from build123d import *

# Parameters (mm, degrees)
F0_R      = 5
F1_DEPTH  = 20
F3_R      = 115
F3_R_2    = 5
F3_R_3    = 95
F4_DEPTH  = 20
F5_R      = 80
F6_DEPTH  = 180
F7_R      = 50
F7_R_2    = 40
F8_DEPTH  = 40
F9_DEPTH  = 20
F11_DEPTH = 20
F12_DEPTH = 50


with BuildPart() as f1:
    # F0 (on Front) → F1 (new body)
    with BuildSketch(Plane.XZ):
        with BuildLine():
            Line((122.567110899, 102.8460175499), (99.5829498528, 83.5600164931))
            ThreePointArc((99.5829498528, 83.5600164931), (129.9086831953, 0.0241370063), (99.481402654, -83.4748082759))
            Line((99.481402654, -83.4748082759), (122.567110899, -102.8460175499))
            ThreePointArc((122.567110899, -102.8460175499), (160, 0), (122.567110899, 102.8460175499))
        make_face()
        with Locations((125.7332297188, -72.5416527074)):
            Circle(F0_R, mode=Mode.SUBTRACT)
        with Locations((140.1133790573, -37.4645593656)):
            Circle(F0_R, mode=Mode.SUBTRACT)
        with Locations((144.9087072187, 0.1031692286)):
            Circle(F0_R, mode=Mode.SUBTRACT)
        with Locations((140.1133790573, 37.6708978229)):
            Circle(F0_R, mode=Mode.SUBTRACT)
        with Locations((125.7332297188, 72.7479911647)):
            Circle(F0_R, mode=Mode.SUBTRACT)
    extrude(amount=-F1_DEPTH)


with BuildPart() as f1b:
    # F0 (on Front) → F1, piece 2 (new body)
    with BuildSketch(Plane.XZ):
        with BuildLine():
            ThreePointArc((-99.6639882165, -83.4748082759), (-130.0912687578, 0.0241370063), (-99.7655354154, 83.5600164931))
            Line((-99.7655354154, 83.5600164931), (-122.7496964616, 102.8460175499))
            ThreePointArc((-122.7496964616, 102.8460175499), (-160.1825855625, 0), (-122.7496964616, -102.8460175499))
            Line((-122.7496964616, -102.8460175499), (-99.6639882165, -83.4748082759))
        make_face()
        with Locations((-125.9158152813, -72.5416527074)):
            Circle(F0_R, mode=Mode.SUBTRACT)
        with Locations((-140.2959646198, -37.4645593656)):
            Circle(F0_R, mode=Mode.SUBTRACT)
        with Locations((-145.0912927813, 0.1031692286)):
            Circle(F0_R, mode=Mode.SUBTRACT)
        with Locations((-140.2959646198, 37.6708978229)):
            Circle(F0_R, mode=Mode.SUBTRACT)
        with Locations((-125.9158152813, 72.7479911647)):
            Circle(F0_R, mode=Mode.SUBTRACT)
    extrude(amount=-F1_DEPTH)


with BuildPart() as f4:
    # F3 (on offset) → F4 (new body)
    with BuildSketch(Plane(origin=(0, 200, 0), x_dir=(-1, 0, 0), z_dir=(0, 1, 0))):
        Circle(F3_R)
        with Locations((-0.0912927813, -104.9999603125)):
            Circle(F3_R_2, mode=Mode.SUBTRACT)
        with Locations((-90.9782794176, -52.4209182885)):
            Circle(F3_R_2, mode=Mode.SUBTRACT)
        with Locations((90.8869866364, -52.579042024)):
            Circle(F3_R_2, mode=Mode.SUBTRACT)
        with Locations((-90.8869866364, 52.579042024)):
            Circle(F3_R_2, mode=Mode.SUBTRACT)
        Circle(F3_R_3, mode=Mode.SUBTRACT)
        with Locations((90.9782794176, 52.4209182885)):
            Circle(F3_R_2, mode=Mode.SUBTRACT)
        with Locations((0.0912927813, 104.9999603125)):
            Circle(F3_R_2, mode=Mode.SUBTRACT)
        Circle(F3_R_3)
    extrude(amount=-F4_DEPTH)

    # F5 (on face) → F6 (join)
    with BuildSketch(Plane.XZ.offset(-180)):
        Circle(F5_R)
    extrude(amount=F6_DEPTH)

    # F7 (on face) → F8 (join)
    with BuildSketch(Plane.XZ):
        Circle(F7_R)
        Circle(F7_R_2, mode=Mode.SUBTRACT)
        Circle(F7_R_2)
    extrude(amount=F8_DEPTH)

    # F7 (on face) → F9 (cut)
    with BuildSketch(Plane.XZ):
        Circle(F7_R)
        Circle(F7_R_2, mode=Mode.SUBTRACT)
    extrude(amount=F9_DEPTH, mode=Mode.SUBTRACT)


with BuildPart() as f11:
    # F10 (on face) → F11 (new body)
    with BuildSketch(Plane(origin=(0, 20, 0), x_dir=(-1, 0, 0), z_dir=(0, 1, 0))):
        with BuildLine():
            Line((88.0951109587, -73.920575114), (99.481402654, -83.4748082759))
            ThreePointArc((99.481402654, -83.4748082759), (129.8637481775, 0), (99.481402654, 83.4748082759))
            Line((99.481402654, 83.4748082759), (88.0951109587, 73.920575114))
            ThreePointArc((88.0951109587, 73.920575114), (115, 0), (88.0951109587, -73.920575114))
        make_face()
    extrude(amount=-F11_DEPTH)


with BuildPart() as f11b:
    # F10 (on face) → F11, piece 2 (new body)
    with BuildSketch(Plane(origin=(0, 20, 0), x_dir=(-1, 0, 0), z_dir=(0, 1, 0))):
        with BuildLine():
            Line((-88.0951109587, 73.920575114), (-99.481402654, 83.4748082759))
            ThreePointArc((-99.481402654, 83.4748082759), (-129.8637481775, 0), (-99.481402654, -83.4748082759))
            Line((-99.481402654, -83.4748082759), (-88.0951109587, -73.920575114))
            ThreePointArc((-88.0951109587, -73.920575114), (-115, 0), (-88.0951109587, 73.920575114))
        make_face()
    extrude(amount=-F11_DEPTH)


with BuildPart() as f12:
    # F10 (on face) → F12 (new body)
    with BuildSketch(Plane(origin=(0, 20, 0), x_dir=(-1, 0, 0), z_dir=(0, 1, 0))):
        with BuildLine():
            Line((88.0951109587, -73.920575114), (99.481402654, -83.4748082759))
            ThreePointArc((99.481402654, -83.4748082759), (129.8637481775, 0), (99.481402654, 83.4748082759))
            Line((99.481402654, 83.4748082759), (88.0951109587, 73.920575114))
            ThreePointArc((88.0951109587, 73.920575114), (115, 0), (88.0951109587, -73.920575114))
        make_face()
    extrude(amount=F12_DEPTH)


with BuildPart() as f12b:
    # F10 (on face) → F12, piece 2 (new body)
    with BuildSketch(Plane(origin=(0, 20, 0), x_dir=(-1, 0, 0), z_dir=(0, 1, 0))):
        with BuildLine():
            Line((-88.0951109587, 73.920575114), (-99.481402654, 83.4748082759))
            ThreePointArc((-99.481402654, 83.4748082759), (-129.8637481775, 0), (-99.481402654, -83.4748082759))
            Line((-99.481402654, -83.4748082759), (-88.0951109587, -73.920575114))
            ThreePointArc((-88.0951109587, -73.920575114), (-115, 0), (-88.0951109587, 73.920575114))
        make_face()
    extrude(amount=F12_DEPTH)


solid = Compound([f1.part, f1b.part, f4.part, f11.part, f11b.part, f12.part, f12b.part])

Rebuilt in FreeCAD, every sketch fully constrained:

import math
import FreeCAD as App
import Part
import Sketcher
from FreeCAD import Vector
Q = App.Units.Quantity

doc = App.newDocument("Part")
body = doc.addObject("PartDesign::Body", "Body")

# Sketch on XZ plane
sketch1 = body.newObject("Sketcher::SketchObject", "Sketch")
sketch1.AttachmentSupport = (doc.getObject("XZ_Plane"), [""])
sketch1.MapMode = "FlatFace"
sketch1.addGeometry(Part.LineSegment(Vector(122.567111, 102.846018, 0), Vector(99.58295, 83.560016, 0)), False)
sketch1.addGeometry(Part.ArcOfCircle(Part.Circle(Vector(-0.091293, 0.103169, 0), Vector(0, 0, 1), 130), math.radians(-40.008969), math.radians(39.939304)), False)
sketch1.addGeometry(Part.LineSegment(Vector(99.481403, -83.474808, 0), Vector(122.567111, -102.846018, 0)), False)
sketch1.addGeometry(Part.ArcOfCircle(Part.Circle(Vector(0, 0, 0), Vector(0, 0, 1), 160), math.radians(-40), math.radians(40)), False)
sketch1.addGeometry(Part.Circle(Vector(125.73323, -72.541653, 0), Vector(0, 0, 1), 5), False)
sketch1.addGeometry(Part.Circle(Vector(140.113379, -37.464559, 0), Vector(0, 0, 1), 5), False)
sketch1.addGeometry(Part.Circle(Vector(144.908707, 0.103169, 0), Vector(0, 0, 1), 5), False)
sketch1.addGeometry(Part.Circle(Vector(125.73323, 72.747991, 0), Vector(0, 0, 1), 5), False)
sketch1.addGeometry(Part.Circle(Vector(140.113379, 37.670898, 0), Vector(0, 0, 1), 5), False)
sketch1.addConstraint(Sketcher.Constraint("Coincident", 0, 2, 1, 2))
sketch1.addConstraint(Sketcher.Constraint("Coincident", 1, 1, 2, 1))
sketch1.addConstraint(Sketcher.Constraint("Coincident", 2, 2, 3, 1))
sketch1.addConstraint(Sketcher.Constraint("Coincident", 3, 2, 0, 1))
sketch1.addConstraint(Sketcher.Constraint("Coincident", 3, 3, -1, 1))
sketch1.addConstraint(Sketcher.Constraint("Equal", 4, 5))
sketch1.addConstraint(Sketcher.Constraint("Equal", 5, 6))
sketch1.addConstraint(Sketcher.Constraint("Equal", 6, 7))
sketch1.addConstraint(Sketcher.Constraint("Equal", 7, 8))
sketch1.addConstraint(Sketcher.Constraint("Horizontal", 1, 3, 6, 3))
sketch1.addConstraint(Sketcher.Constraint("Vertical", 4, 3, 7, 3))
sketch1.addConstraint(Sketcher.Constraint("Vertical", 5, 3, 8, 3))
sketch1.addConstraint(Sketcher.Constraint("Vertical", 2, 2, 3, 2))
sketch1.addConstraint(Sketcher.Constraint("Diameter", 4, 10.0))
sketch1.addConstraint(Sketcher.Constraint("Radius", 1, 130.0))
sketch1.addConstraint(Sketcher.Constraint("Radius", 3, 160.0))
sketch1.addConstraint(Sketcher.Constraint("Angle", 0, Q("-140 deg")))
sketch1.addConstraint(Sketcher.Constraint("Angle", 2, Q("-40 deg")))
sketch1.addConstraint(Sketcher.Constraint("DistanceX", 1, 3, 6, 3, 145.0))
sketch1.addConstraint(Sketcher.Constraint("DistanceY", 0, 2, 3, 2, 19.286001))
sketch1.addConstraint(Sketcher.Constraint("Distance", 2, 30.136252))
sketch1.addConstraint(Sketcher.Constraint("DistanceX", -1, 1, 4, 3, 125.73323))
sketch1.addConstraint(Sketcher.Constraint("DistanceX", -1, 1, 5, 3, 140.113379))
sketch1.addConstraint(Sketcher.Constraint("DistanceY", 5, 3, -1, 1, 37.464559))
sketch1.addConstraint(Sketcher.Constraint("DistanceY", -1, 1, 7, 3, 72.747991))
sketch1.addConstraint(Sketcher.Constraint("DistanceX", -1, 1, 0, 2, 99.58295))
sketch1.addConstraint(Sketcher.Constraint("DistanceY", 4, 3, 1, 3, 72.644822))
sketch1.addConstraint(Sketcher.Constraint("DistanceY", 6, 3, 8, 3, 37.567729))
pad1 = body.newObject("PartDesign::Pad", "Pad")
pad1.Profile = sketch1
pad1.Length = 20
pad1.Reversed = True
body2 = doc.addObject("PartDesign::Body", "Body001")

# Sketch on XZ plane
sketch2 = body2.newObject("Sketcher::SketchObject", "Sketch001")
sketch2.AttachmentSupport = (doc.getObject("XZ_Plane001"), [""])
sketch2.MapMode = "FlatFace"
sketch2.addGeometry(Part.ArcOfCircle(Part.Circle(Vector(-0.091293, 0.103169, 0), Vector(0, 0, 1), 130), math.radians(140.060696), math.radians(220.008969)), False)
sketch2.addGeometry(Part.LineSegment(Vector(-99.765535, 83.560016, 0), Vector(-122.749696, 102.846018, 0)), False)
sketch2.addGeometry(Part.ArcOfCircle(Part.Circle(Vector(-0.182586, 0, 0), Vector(0, 0, 1), 160), math.radians(140), math.radians(220)), False)
sketch2.addGeometry(Part.LineSegment(Vector(-122.749696, -102.846018, 0), Vector(-99.663988, -83.474808, 0)), False)
sketch2.addGeometry(Part.Circle(Vector(-145.091293, 0.103169, 0), Vector(0, 0, 1), 5), False)
sketch2.addGeometry(Part.Circle(Vector(-140.295965, -37.464559, 0), Vector(0, 0, 1), 5), False)
sketch2.addGeometry(Part.Circle(Vector(-125.915815, -72.541653, 0), Vector(0, 0, 1), 5), False)
sketch2.addGeometry(Part.Circle(Vector(-140.295965, 37.670898, 0), Vector(0, 0, 1), 5), False)
sketch2.addGeometry(Part.Circle(Vector(-125.915815, 72.747991, 0), Vector(0, 0, 1), 5), False)
sketch2.addConstraint(Sketcher.Constraint("Coincident", 0, 1, 1, 1))
sketch2.addConstraint(Sketcher.Constraint("Coincident", 1, 2, 2, 1))
sketch2.addConstraint(Sketcher.Constraint("Coincident", 2, 2, 3, 1))
sketch2.addConstraint(Sketcher.Constraint("Coincident", 3, 2, 0, 2))
sketch2.addConstraint(Sketcher.Constraint("Equal", 4, 5))
sketch2.addConstraint(Sketcher.Constraint("Equal", 5, 6))
sketch2.addConstraint(Sketcher.Constraint("Equal", 6, 7))
sketch2.addConstraint(Sketcher.Constraint("Equal", 7, 8))
sketch2.addConstraint(Sketcher.Constraint("Symmetric", 1, 2, 2, 2, -1))
sketch2.addConstraint(Sketcher.Constraint("Horizontal", 0, 3, 4, 3))
sketch2.addConstraint(Sketcher.Constraint("Vertical", 5, 3, 7, 3))
sketch2.addConstraint(Sketcher.Constraint("Vertical", 6, 3, 8, 3))
sketch2.addConstraint(Sketcher.Constraint("Diameter", 4, 10.0))
sketch2.addConstraint(Sketcher.Constraint("Radius", 0, 130.0))
sketch2.addConstraint(Sketcher.Constraint("Radius", 2, 160.0))
sketch2.addConstraint(Sketcher.Constraint("Angle", 1, Q("140 deg")))
sketch2.addConstraint(Sketcher.Constraint("Angle", 3, Q("40 deg")))
sketch2.addConstraint(Sketcher.Constraint("DistanceX", 4, 3, 0, 3, 145.0))
sketch2.addConstraint(Sketcher.Constraint("DistanceY", 0, 1, 1, 2, 19.286001))
sketch2.addConstraint(Sketcher.Constraint("Distance", 3, 30.136252))
sketch2.addConstraint(Sketcher.Constraint("DistanceY", 5, 3, -1, 1, 37.464559))
sketch2.addConstraint(Sketcher.Constraint("DistanceY", -1, 1, 8, 3, 72.747991))
sketch2.addConstraint(Sketcher.Constraint("DistanceX", 3, 2, -1, 1, 99.663988))
sketch2.addConstraint(Sketcher.Constraint("DistanceY", 3, 2, -1, 1, 83.474808))
sketch2.addConstraint(Sketcher.Constraint("DistanceX", 4, 3, 5, 3, 4.795328))
sketch2.addConstraint(Sketcher.Constraint("DistanceX", 5, 3, 6, 3, 14.380149))
sketch2.addConstraint(Sketcher.Constraint("DistanceY", 6, 3, 4, 3, 72.644822))
sketch2.addConstraint(Sketcher.Constraint("DistanceY", 4, 3, 7, 3, 37.567729))
pad2 = body2.newObject("PartDesign::Pad", "Pad001")
pad2.Profile = sketch2
pad2.Length = 20
pad2.Reversed = True
body3 = doc.addObject("PartDesign::Body", "Body002")

# Sketch on XZ plane
sketch3 = body3.newObject("Sketcher::SketchObject", "Sketch002")
sketch3.AttachmentSupport = (doc.getObject("XZ_Plane002"), [""])
sketch3.MapMode = "FlatFace"
sketch3.AttachmentOffset = App.Placement(Vector(0, 0, -200), App.Rotation())
sketch3.addGeometry(Part.Circle(Vector(0, 0, 0), Vector(0, 0, 1), 115), False)
sketch3.addGeometry(Part.Circle(Vector(0.091293, -104.99996, 0), Vector(0, 0, 1), 5), False)
sketch3.addGeometry(Part.Circle(Vector(90.978279, -52.420918, 0), Vector(0, 0, 1), 5), False)
sketch3.addGeometry(Part.Circle(Vector(-90.886987, -52.579042, 0), Vector(0, 0, 1), 5), False)
sketch3.addGeometry(Part.Circle(Vector(90.886987, 52.579042, 0), Vector(0, 0, 1), 5), False)
sketch3.addGeometry(Part.Circle(Vector(-90.978279, 52.420918, 0), Vector(0, 0, 1), 5), False)
sketch3.addGeometry(Part.Circle(Vector(-0.091293, 104.99996, 0), Vector(0, 0, 1), 5), False)
sketch3.addConstraint(Sketcher.Constraint("Coincident", 0, 3, -1, 1))
sketch3.addConstraint(Sketcher.Constraint("Equal", 1, 2))
sketch3.addConstraint(Sketcher.Constraint("Equal", 2, 3))
sketch3.addConstraint(Sketcher.Constraint("Equal", 3, 4))
sketch3.addConstraint(Sketcher.Constraint("Equal", 4, 5))
sketch3.addConstraint(Sketcher.Constraint("Equal", 5, 6))
sketch3.addConstraint(Sketcher.Constraint("Symmetric", 3, 3, 4, 3, -1, 1))
sketch3.addConstraint(Sketcher.Constraint("Symmetric", 2, 3, 5, 3, -1, 1))
sketch3.addConstraint(Sketcher.Constraint("Symmetric", 1, 3, 6, 3, -1, 1))
sketch3.addConstraint(Sketcher.Constraint("Diameter", 0, 230.0))
sketch3.addConstraint(Sketcher.Constraint("Diameter", 1, 10.0))
sketch3.addConstraint(Sketcher.Constraint("DistanceY", 1, 3, -1, 1, 104.99996))
sketch3.addConstraint(Sketcher.Constraint("DistanceX", -1, 1, 2, 3, 90.978279))
sketch3.addConstraint(Sketcher.Constraint("DistanceY", 2, 3, -1, 1, 52.420918))
sketch3.addConstraint(Sketcher.Constraint("DistanceX", 3, 3, 1, 3, 90.978279))
sketch3.addConstraint(Sketcher.Constraint("DistanceY", 1, 3, 3, 3, 52.420918))
sketch3.addConstraint(Sketcher.Constraint("DistanceX", -1, 1, 1, 3, 0.091293))
pad3 = body3.newObject("PartDesign::Pad", "Pad002")
pad3.Profile = sketch3
pad3.Length = 20

# Sketch on XZ plane
sketch4 = body3.newObject("Sketcher::SketchObject", "Sketch003")
sketch4.AttachmentSupport = (doc.getObject("XZ_Plane002"), [""])
sketch4.MapMode = "FlatFace"
sketch4.AttachmentOffset = App.Placement(Vector(0, 0, -180), App.Rotation())
sketch4.addGeometry(Part.Circle(Vector(0, 0, 0), Vector(0, 0, 1), 80), False)
sketch4.addConstraint(Sketcher.Constraint("Coincident", 0, 3, -1, 1))
sketch4.addConstraint(Sketcher.Constraint("Diameter", 0, 160.0))
pad4 = body3.newObject("PartDesign::Pad", "Pad003")
pad4.Profile = sketch4
pad4.Length = 180

# Sketch on XZ plane
sketch5 = body3.newObject("Sketcher::SketchObject", "Sketch004")
sketch5.AttachmentSupport = (doc.getObject("XZ_Plane002"), [""])
sketch5.MapMode = "FlatFace"
sketch5.addGeometry(Part.Circle(Vector(0, 0, 0), Vector(0, 0, 1), 50), False)
sketch5.addConstraint(Sketcher.Constraint("Coincident", 0, 3, -1, 1))
sketch5.addConstraint(Sketcher.Constraint("Diameter", 0, 100.0))
pad5 = body3.newObject("PartDesign::Pad", "Pad004")
pad5.Profile = sketch5
pad5.Length = 40

# Sketch on XZ plane
sketch6 = body3.newObject("Sketcher::SketchObject", "Sketch005")
sketch6.AttachmentSupport = (doc.getObject("XZ_Plane002"), [""])
sketch6.MapMode = "FlatFace"
sketch6.addGeometry(Part.Circle(Vector(0, 0, 0), Vector(0, 0, 1), 50), False)
sketch6.addGeometry(Part.Circle(Vector(0, 0, 0), Vector(0, 0, 1), 40), False)
sketch6.addConstraint(Sketcher.Constraint("Coincident", 0, 3, -1, 1))
sketch6.addConstraint(Sketcher.Constraint("Coincident", 1, 3, -1, 1))
sketch6.addConstraint(Sketcher.Constraint("Diameter", 0, 100.0))
sketch6.addConstraint(Sketcher.Constraint("Diameter", 1, 80.0))
pocket1 = body3.newObject("PartDesign::Pocket", "Pocket")
pocket1.Profile = sketch6
pocket1.Length = 20
pocket1.Reversed = True
body4 = doc.addObject("PartDesign::Body", "Body003")

# Sketch on XZ plane
sketch7 = body4.newObject("Sketcher::SketchObject", "Sketch006")
sketch7.AttachmentSupport = (doc.getObject("XZ_Plane003"), [""])
sketch7.MapMode = "FlatFace"
sketch7.AttachmentOffset = App.Placement(Vector(0, 0, -20), App.Rotation())
sketch7.addGeometry(Part.LineSegment(Vector(-88.095111, -73.920575, 0), Vector(-99.481403, -83.474808, 0)), False)
sketch7.addGeometry(Part.ArcOfCircle(Part.Circle(Vector(0, 0, 0), Vector(0, 0, 1), 129.863748), math.radians(140), math.radians(220)), False)
sketch7.addGeometry(Part.LineSegment(Vector(-99.481403, 83.474808, 0), Vector(-88.095111, 73.920575, 0)), False)
sketch7.addGeometry(Part.ArcOfCircle(Part.Circle(Vector(0, 0, 0), Vector(0, 0, 1), 115), math.radians(140), math.radians(220)), False)
sketch7.addConstraint(Sketcher.Constraint("Coincident", 0, 2, 1, 2))
sketch7.addConstraint(Sketcher.Constraint("Coincident", 1, 1, 2, 1))
sketch7.addConstraint(Sketcher.Constraint("Coincident", 2, 2, 3, 1))
sketch7.addConstraint(Sketcher.Constraint("Coincident", 3, 2, 0, 1))
sketch7.addConstraint(Sketcher.Constraint("Coincident", 1, 3, -1, 1))
sketch7.addConstraint(Sketcher.Constraint("Coincident", 3, 3, -1, 1))
sketch7.addConstraint(Sketcher.Constraint("Vertical", 0, 2, 1, 1))
sketch7.addConstraint(Sketcher.Constraint("Vertical", 2, 2, 3, 2))
sketch7.addConstraint(Sketcher.Constraint("Radius", 3, 115.0))
sketch7.addConstraint(Sketcher.Constraint("Angle", 0, Q("-140 deg")))
sketch7.addConstraint(Sketcher.Constraint("Radius", 1, 129.863748))
sketch7.addConstraint(Sketcher.Constraint("DistanceY", 0, 2, -1, 1, 83.474808))
pad6 = body4.newObject("PartDesign::Pad", "Pad005")
pad6.Profile = sketch7
pad6.Length = 20
body5 = doc.addObject("PartDesign::Body", "Body004")

# Sketch on XZ plane
sketch8 = body5.newObject("Sketcher::SketchObject", "Sketch007")
sketch8.AttachmentSupport = (doc.getObject("XZ_Plane004"), [""])
sketch8.MapMode = "FlatFace"
sketch8.AttachmentOffset = App.Placement(Vector(0, 0, -20), App.Rotation())
sketch8.addGeometry(Part.LineSegment(Vector(88.095111, 73.920575, 0), Vector(99.481403, 83.474808, 0)), False)
sketch8.addGeometry(Part.ArcOfCircle(Part.Circle(Vector(0, 0, 0), Vector(0, 0, 1), 129.863748), math.radians(-40), math.radians(40)), False)
sketch8.addGeometry(Part.LineSegment(Vector(99.481403, -83.474808, 0), Vector(88.095111, -73.920575, 0)), False)
sketch8.addGeometry(Part.ArcOfCircle(Part.Circle(Vector(0, 0, 0), Vector(0, 0, 1), 115), math.radians(-40), math.radians(40)), False)
sketch8.addConstraint(Sketcher.Constraint("Coincident", 0, 2, 1, 2))
sketch8.addConstraint(Sketcher.Constraint("Coincident", 1, 1, 2, 1))
sketch8.addConstraint(Sketcher.Constraint("Coincident", 2, 2, 3, 1))
sketch8.addConstraint(Sketcher.Constraint("Coincident", 3, 2, 0, 1))
sketch8.addConstraint(Sketcher.Constraint("Coincident", 1, 3, -1, 1))
sketch8.addConstraint(Sketcher.Constraint("Coincident", 3, 3, -1, 1))
sketch8.addConstraint(Sketcher.Constraint("Vertical", 0, 2, 1, 1))
sketch8.addConstraint(Sketcher.Constraint("Vertical", 2, 2, 3, 2))
sketch8.addConstraint(Sketcher.Constraint("Radius", 3, 115.0))
sketch8.addConstraint(Sketcher.Constraint("Angle", 0, Q("40 deg")))
sketch8.addConstraint(Sketcher.Constraint("Radius", 1, 129.863748))
sketch8.addConstraint(Sketcher.Constraint("DistanceY", -1, 1, 0, 2, 83.474808))
pad7 = body5.newObject("PartDesign::Pad", "Pad006")
pad7.Profile = sketch8
pad7.Length = 20
body6 = doc.addObject("PartDesign::Body", "Body005")

# Sketch on XZ plane
sketch9 = body6.newObject("Sketcher::SketchObject", "Sketch008")
sketch9.AttachmentSupport = (doc.getObject("XZ_Plane005"), [""])
sketch9.MapMode = "FlatFace"
sketch9.AttachmentOffset = App.Placement(Vector(0, 0, -20), App.Rotation())
sketch9.addGeometry(Part.LineSegment(Vector(-88.095111, -73.920575, 0), Vector(-99.481403, -83.474808, 0)), False)
sketch9.addGeometry(Part.ArcOfCircle(Part.Circle(Vector(0, 0, 0), Vector(0, 0, 1), 129.863748), math.radians(140), math.radians(220)), False)
sketch9.addGeometry(Part.LineSegment(Vector(-99.481403, 83.474808, 0), Vector(-88.095111, 73.920575, 0)), False)
sketch9.addGeometry(Part.ArcOfCircle(Part.Circle(Vector(0, 0, 0), Vector(0, 0, 1), 115), math.radians(140), math.radians(220)), False)
sketch9.addConstraint(Sketcher.Constraint("Coincident", 0, 2, 1, 2))
sketch9.addConstraint(Sketcher.Constraint("Coincident", 1, 1, 2, 1))
sketch9.addConstraint(Sketcher.Constraint("Coincident", 2, 2, 3, 1))
sketch9.addConstraint(Sketcher.Constraint("Coincident", 3, 2, 0, 1))
sketch9.addConstraint(Sketcher.Constraint("Coincident", 1, 3, -1, 1))
sketch9.addConstraint(Sketcher.Constraint("Coincident", 3, 3, -1, 1))
sketch9.addConstraint(Sketcher.Constraint("Vertical", 0, 2, 1, 1))
sketch9.addConstraint(Sketcher.Constraint("Vertical", 2, 2, 3, 2))
sketch9.addConstraint(Sketcher.Constraint("Radius", 3, 115.0))
sketch9.addConstraint(Sketcher.Constraint("Angle", 0, Q("-140 deg")))
sketch9.addConstraint(Sketcher.Constraint("Radius", 1, 129.863748))
sketch9.addConstraint(Sketcher.Constraint("DistanceY", 0, 2, -1, 1, 83.474808))
pad8 = body6.newObject("PartDesign::Pad", "Pad007")
pad8.Profile = sketch9
pad8.Length = 50
pad8.Reversed = True
body7 = doc.addObject("PartDesign::Body", "Body006")

# Sketch on XZ plane
sketch10 = body7.newObject("Sketcher::SketchObject", "Sketch009")
sketch10.AttachmentSupport = (doc.getObject("XZ_Plane006"), [""])
sketch10.MapMode = "FlatFace"
sketch10.AttachmentOffset = App.Placement(Vector(0, 0, -20), App.Rotation())
sketch10.addGeometry(Part.LineSegment(Vector(88.095111, 73.920575, 0), Vector(99.481403, 83.474808, 0)), False)
sketch10.addGeometry(Part.ArcOfCircle(Part.Circle(Vector(0, 0, 0), Vector(0, 0, 1), 129.863748), math.radians(-40), math.radians(40)), False)
sketch10.addGeometry(Part.LineSegment(Vector(99.481403, -83.474808, 0), Vector(88.095111, -73.920575, 0)), False)
sketch10.addGeometry(Part.ArcOfCircle(Part.Circle(Vector(0, 0, 0), Vector(0, 0, 1), 115), math.radians(-40), math.radians(40)), False)
sketch10.addConstraint(Sketcher.Constraint("Coincident", 0, 2, 1, 2))
sketch10.addConstraint(Sketcher.Constraint("Coincident", 1, 1, 2, 1))
sketch10.addConstraint(Sketcher.Constraint("Coincident", 2, 2, 3, 1))
sketch10.addConstraint(Sketcher.Constraint("Coincident", 3, 2, 0, 1))
sketch10.addConstraint(Sketcher.Constraint("Coincident", 1, 3, -1, 1))
sketch10.addConstraint(Sketcher.Constraint("Coincident", 3, 3, -1, 1))
sketch10.addConstraint(Sketcher.Constraint("Vertical", 0, 2, 1, 1))
sketch10.addConstraint(Sketcher.Constraint("Vertical", 2, 2, 3, 2))
sketch10.addConstraint(Sketcher.Constraint("Radius", 3, 115.0))
sketch10.addConstraint(Sketcher.Constraint("Angle", 0, Q("40 deg")))
sketch10.addConstraint(Sketcher.Constraint("Radius", 1, 129.863748))
sketch10.addConstraint(Sketcher.Constraint("DistanceY", -1, 1, 0, 2, 83.474808))
pad9 = body7.newObject("PartDesign::Pad", "Pad008")
pad9.Profile = sketch10
pad9.Length = 50
pad9.Reversed = True

doc.recompute()
